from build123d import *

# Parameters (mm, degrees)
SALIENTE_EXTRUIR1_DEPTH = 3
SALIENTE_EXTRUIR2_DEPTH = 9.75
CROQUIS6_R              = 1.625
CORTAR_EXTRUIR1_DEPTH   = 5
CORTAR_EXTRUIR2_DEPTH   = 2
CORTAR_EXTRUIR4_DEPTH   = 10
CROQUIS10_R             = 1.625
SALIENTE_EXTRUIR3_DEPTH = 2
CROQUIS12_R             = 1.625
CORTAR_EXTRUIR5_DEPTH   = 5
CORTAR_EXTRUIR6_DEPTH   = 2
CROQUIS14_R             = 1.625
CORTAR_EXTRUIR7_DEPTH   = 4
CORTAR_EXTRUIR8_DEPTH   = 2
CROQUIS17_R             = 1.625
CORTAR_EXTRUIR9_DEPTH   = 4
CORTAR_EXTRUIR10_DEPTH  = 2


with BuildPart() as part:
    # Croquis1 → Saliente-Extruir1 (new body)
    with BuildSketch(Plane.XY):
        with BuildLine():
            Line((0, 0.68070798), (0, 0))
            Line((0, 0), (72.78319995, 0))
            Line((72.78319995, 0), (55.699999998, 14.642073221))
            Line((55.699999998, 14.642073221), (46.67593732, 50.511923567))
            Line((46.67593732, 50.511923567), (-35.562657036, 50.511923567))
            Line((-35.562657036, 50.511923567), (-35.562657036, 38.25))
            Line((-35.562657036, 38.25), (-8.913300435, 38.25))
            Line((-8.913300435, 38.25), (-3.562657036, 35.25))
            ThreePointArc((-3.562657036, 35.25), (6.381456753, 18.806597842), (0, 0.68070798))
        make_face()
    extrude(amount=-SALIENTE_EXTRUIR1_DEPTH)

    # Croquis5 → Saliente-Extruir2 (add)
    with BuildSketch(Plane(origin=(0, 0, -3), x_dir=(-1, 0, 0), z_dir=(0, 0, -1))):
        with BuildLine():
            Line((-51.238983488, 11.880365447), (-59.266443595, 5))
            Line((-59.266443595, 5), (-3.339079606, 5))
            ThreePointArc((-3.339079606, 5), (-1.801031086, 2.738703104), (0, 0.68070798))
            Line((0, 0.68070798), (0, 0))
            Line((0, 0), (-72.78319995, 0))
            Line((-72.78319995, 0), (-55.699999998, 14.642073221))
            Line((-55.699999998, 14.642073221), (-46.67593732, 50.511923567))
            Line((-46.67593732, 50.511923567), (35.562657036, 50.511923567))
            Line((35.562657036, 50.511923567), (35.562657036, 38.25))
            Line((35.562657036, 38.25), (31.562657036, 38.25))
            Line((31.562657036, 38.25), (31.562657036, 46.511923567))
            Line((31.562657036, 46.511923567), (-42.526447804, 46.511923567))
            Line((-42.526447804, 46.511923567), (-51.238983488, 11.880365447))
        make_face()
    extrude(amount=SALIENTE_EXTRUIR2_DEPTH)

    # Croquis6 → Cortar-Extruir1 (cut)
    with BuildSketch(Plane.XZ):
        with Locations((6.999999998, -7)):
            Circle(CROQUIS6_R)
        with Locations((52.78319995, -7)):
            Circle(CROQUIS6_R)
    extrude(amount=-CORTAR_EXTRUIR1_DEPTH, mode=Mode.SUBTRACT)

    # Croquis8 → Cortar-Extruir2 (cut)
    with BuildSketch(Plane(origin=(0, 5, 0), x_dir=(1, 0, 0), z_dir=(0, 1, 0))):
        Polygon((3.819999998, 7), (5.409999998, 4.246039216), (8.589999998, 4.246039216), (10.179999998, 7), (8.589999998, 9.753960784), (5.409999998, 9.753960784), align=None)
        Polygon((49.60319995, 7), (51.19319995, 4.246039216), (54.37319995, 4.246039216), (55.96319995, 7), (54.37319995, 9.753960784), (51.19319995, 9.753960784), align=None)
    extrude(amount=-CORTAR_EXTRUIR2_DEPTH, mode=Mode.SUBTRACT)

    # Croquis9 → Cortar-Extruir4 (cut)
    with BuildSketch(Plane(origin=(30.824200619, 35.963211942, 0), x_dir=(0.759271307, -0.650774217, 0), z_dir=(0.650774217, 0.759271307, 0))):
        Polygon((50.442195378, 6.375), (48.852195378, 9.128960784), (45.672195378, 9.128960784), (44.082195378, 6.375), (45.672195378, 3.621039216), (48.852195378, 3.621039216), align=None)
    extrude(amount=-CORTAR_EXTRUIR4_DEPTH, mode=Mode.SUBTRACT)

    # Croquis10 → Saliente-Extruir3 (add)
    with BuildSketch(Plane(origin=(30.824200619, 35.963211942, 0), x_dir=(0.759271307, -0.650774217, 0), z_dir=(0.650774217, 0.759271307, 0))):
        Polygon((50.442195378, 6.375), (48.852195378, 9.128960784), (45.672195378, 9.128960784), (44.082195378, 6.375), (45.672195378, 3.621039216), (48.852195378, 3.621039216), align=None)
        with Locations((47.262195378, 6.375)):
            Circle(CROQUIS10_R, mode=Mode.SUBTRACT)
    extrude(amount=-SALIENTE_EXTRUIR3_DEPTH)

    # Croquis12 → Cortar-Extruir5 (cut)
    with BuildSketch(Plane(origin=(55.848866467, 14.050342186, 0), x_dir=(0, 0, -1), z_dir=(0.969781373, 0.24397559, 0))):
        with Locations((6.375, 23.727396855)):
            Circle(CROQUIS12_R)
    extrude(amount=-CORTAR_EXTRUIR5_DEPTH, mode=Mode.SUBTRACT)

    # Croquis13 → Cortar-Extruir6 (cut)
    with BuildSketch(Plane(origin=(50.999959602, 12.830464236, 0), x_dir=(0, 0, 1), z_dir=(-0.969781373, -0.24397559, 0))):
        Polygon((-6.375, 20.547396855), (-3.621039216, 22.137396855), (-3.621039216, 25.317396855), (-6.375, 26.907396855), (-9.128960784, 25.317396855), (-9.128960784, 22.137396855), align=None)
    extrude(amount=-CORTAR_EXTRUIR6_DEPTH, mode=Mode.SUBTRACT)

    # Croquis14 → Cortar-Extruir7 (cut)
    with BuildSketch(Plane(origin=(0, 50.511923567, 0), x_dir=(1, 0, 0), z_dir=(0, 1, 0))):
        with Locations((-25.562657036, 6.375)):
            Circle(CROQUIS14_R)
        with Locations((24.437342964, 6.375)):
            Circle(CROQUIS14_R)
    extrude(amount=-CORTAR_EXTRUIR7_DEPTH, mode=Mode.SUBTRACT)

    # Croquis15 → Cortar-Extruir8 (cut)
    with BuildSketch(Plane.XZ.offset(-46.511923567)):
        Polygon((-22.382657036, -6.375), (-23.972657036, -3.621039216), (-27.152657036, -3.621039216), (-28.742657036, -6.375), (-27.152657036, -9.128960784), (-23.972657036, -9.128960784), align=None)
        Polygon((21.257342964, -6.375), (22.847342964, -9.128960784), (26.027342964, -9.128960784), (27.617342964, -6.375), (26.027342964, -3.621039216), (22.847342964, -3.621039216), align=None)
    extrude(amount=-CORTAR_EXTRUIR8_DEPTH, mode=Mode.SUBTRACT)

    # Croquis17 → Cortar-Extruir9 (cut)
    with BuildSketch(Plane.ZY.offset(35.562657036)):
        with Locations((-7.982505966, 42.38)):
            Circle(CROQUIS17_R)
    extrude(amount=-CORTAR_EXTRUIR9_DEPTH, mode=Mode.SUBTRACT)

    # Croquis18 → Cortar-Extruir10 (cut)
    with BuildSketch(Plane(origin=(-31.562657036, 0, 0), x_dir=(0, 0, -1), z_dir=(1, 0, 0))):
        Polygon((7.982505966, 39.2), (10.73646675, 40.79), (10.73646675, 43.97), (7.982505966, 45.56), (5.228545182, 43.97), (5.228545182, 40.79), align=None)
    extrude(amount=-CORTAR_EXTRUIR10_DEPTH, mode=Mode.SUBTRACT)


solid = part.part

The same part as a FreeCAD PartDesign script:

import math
import FreeCAD as App
import Part
import Sketcher
Q = App.Units.Quantity


def add_polygon(sketch, points):
    """Adds a closed chain of lines whose ends are joined by coincident constraints."""
    first, n = sketch.GeometryCount, len(points)
    for a, b in zip(points, points[1:] + points[:1]):
        sketch.addGeometry(Part.LineSegment(App.Vector(*a, 0), App.Vector(*b, 0)), False)
    for i in range(n):
        sketch.addConstraint(Sketcher.Constraint("Coincident", first + i, 2, first + (i + 1) % n, 1))

doc = App.newDocument("Part")
body = doc.addObject("PartDesign::Body", "Body")

sketch1 = doc.addObject("Sketcher::SketchObject", "Sketch")
body.addObject(sketch1)
sketch1.AttachmentSupport = (doc.XY_Plane, [""])
sketch1.MapMode = "FlatFace"
sketch1.addGeometry([
    Part.LineSegment(App.Vector(0, 0.7, 0), App.Vector(0, 0, 0)),
    Part.LineSegment(App.Vector(0, 0, 0), App.Vector(72.8, 0, 0)),
    Part.LineSegment(App.Vector(72.8, 0, 0), App.Vector(55.7, 14.6, 0)),
    Part.LineSegment(App.Vector(55.7, 14.6, 0), App.Vector(46.7, 50.5, 0)),
    Part.LineSegment(App.Vector(46.7, 50.5, 0), App.Vector(-35.6, 50.5, 0)),
    Part.LineSegment(App.Vector(-35.6, 50.5, 0), App.Vector(-35.6, 38.2, 0)),
    Part.LineSegment(App.Vector(-35.6, 38.2, 0), App.Vector(-8.9, 38.2, 0)),
    Part.LineSegment(App.Vector(-8.9, 38.2, 0), App.Vector(-3.6, 35.2, 0)),
    Part.ArcOfCircle(Part.Circle(App.Vector(-16, 16.5, 0), App.Vector(0, 0, 1), 22.5), math.radians(-45), math.radians(56)),
], False)
sketch1.addConstraint([
    Sketcher.Constraint("Coincident", 0, 2, 1, 1),
    Sketcher.Constraint("Coincident", 1, 2, 2, 1),
    Sketcher.Constraint("Coincident", 2, 2, 3, 1),
    Sketcher.Constraint("Coincident", 3, 2, 4, 1),
    Sketcher.Constraint("Coincident", 4, 2, 5, 1),
    Sketcher.Constraint("Coincident", 5, 2, 6, 1),
    Sketcher.Constraint("Coincident", 6, 2, 7, 1),
    Sketcher.Constraint("Coincident", 7, 2, 8, 2),
    Sketcher.Constraint("Coincident", 8, 1, 0, 1),
    Sketcher.Constraint("Vertical", 0),
    Sketcher.Constraint("Horizontal", 1),
    Sketcher.Constraint("Horizontal", 4),
    Sketcher.Constraint("Vertical", 5),
    Sketcher.Constraint("Horizontal", 6),
    Sketcher.Constraint("Coincident", 0, 2, -1, 1),
    Sketcher.Constraint("Radius", 8, 22.5),
    Sketcher.Constraint("DistanceX", 8, 3, -1, 1, 16.0),
    Sketcher.Constraint("Angle", 2, Q("139.4 deg")),
    Sketcher.Constraint("DistanceY", 7, 2, 6, 2, 3.0),
    Sketcher.Constraint("DistanceX", 5, 2, 7, 2, 32.0),
    Sketcher.Constraint("DistanceY", -1, 1, 8, 3, 16.5),
    Sketcher.Constraint("DistanceX", -1, 1, 2, 2, 55.7),
    Sketcher.Constraint("DistanceY", -1, 1, 5, 2, 38.25),
    Sketcher.Constraint("DistanceX", 1, 1, 1, 2, 72.7832),
    Sketcher.Constraint("DistanceX", 6, 2, -1, 1, 8.9133),
    Sketcher.Constraint("DistanceX", 4, 2, 4, 1, 82.238594),
    Sketcher.Constraint("DistanceY", 5, 2, 5, 1, 12.261924),
])
pad1 = doc.addObject("PartDesign::Pad", "Pad")
body.addObject(pad1)
pad1.Profile = sketch1
pad1.Length = 3
pad1.Reversed = True

sketch2 = doc.addObject("Sketcher::SketchObject", "Sketch001")
body.addObject(sketch2)
sketch2.AttachmentSupport = (doc.XY_Plane, [""])
sketch2.MapMode = "FlatFace"
sketch2.AttachmentOffset = App.Placement(App.Vector(0, 0, -3), App.Rotation())
sketch2.addGeometry([
    Part.LineSegment(App.Vector(59.266444, 5, 0), App.Vector(51.238983, 11.880365, 0)),
    Part.LineSegment(App.Vector(51.238983, 11.880365, 0), App.Vector(42.526448, 46.511924, 0)),
    Part.LineSegment(App.Vector(42.526448, 46.511924, 0), App.Vector(-31.562657, 46.511924, 0)),
    Part.LineSegment(App.Vector(-31.562657, 46.511924, 0), App.Vector(-31.562657, 38.25, 0)),
    Part.LineSegment(App.Vector(-31.562657, 38.25, 0), App.Vector(-35.562657, 38.25, 0)),
    Part.LineSegment(App.Vector(-35.562657, 38.25, 0), App.Vector(-35.562657, 50.511924, 0)),
    Part.LineSegment(App.Vector(-35.562657, 50.511924, 0), App.Vector(46.675937, 50.511924, 0)),
    Part.LineSegment(App.Vector(46.675937, 50.511924, 0), App.Vector(55.7, 14.642073, 0)),
    Part.LineSegment(App.Vector(55.7, 14.642073, 0), App.Vector(72.7832, 0, 0)),
    Part.LineSegment(App.Vector(72.7832, 0, 0), App.Vector(0, 0, 0)),
    Part.LineSegment(App.Vector(0, 0, 0), App.Vector(0, 0.680708, 0)),
    Part.ArcOfCircle(Part.Circle(App.Vector(-16, 16.5, 0), App.Vector(0, 0, 1), 22.5), math.radians(-44.67461), math.radians(-30.737869)),
    Part.LineSegment(App.Vector(3.33908, 5, 0), App.Vector(59.266444, 5, 0)),
], False)
sketch2.addConstraint([
    Sketcher.Constraint("Coincident", 0, 2, 1, 1),
    Sketcher.Constraint("Coincident", 1, 2, 2, 1),
    Sketcher.Constraint("Coincident", 2, 2, 3, 1),
    Sketcher.Constraint("Coincident", 3, 2, 4, 1),
    Sketcher.Constraint("Coincident", 4, 2, 5, 1),
    Sketcher.Constraint("Coincident", 5, 2, 6, 1),
    Sketcher.Constraint("Coincident", 6, 2, 7, 1),
    Sketcher.Constraint("Coincident", 7, 2, 8, 1),
    Sketcher.Constraint("Coincident", 8, 2, 9, 1),
    Sketcher.Constraint("Coincident", 9, 2, 10, 1),
    Sketcher.Constraint("Coincident", 10, 2, 11, 1),
    Sketcher.Constraint("Coincident", 11, 2, 12, 1),
    Sketcher.Constraint("Coincident", 12, 2, 0, 1),
    Sketcher.Constraint("Horizontal", 2),
    Sketcher.Constraint("Vertical", 3),
    Sketcher.Constraint("Horizontal", 4),
    Sketcher.Constraint("Vertical", 5),
    Sketcher.Constraint("Horizontal", 6),
    Sketcher.Constraint("Horizontal", 9),
    Sketcher.Constraint("Vertical", 10),
    Sketcher.Constraint("Horizontal", 12),
    Sketcher.Constraint("Coincident", 9, 2, -1, 1),
    Sketcher.Constraint("Parallel", 1, 7),
    Sketcher.Constraint("Parallel", 0, 8),
    Sketcher.Constraint("Radius", 11, 22.5),
    Sketcher.Constraint("DistanceX", 4, 2, 4, 1, 4.0),
    Sketcher.Constraint("DistanceX", 11, 3, -1, 1, 16.0),
    Sketcher.Constraint("DistanceY", -1, 1, 11, 2, 5.0),
    Sketcher.Constraint("Angle", 0, Q("139.4 deg")),
    Sketcher.Constraint("DistanceY", 2, 2, 5, 2, 4.0),
    Sketcher.Constraint("DistanceY", -1, 1, 11, 3, 16.5),
    Sketcher.Constraint("DistanceX", -1, 1, 7, 2, 55.7),
    Sketcher.Constraint("DistanceY", -1, 1, 3, 2, 38.25),
    Sketcher.Constraint("DistanceX", 9, 2, 9, 1, 72.7832),
    Sketcher.Constraint("DistanceX", 2, 2, 2, 1, 74.089105),
    Sketcher.Constraint("DistanceX", 6, 1, 6, 2, 82.238594),
    Sketcher.Constraint("DistanceX", 12, 1, 12, 2, 55.927364),
    Sketcher.Constraint("DistanceY", 3, 2, 3, 1, 8.261924),
    Sketcher.Constraint("DistanceY", 0, 2, 1, 2, 34.631558),
])
pad2 = doc.addObject("PartDesign::Pad", "Pad001")
body.addObject(pad2)
pad2.Profile = sketch2
pad2.Length = 9.75
pad2.Reversed = True

sketch3 = doc.addObject("Sketcher::SketchObject", "Sketch002")
body.addObject(sketch3)
sketch3.AttachmentSupport = (doc.XZ_Plane, [""])
sketch3.MapMode = "FlatFace"
sketch3.addGeometry([
    Part.Circle(App.Vector(7, -7, 0), App.Vector(0, 0, 1), 1.6),
    Part.Circle(App.Vector(52.8, -7, 0), App.Vector(0, 0, 1), 1.6),
], False)
sketch3.addConstraint([
    Sketcher.Constraint("Equal", 0, 1),
    Sketcher.Constraint("Horizontal", 0, 3, 1, 3),
    Sketcher.Constraint("Diameter", 0, 3.25),
    Sketcher.Constraint("DistanceX", -1, 1, 0, 3, 7.0),
    Sketcher.Constraint("DistanceY", 0, 3, -1, 1, 7.0),
    Sketcher.Constraint("DistanceX", -1, 1, 1, 3, 52.7832),
])
pocket1 = doc.addObject("PartDesign::Pocket", "Pocket")
body.addObject(pocket1)
pocket1.Profile = sketch3
pocket1.Length = 5

sketch4 = doc.addObject("Sketcher::SketchObject", "Sketch003")
body.addObject(sketch4)
sketch4.AttachmentSupport = (doc.XZ_Plane, [""])
sketch4.MapMode = "FlatFace"
sketch4.AttachmentOffset = App.Placement(App.Vector(0, 0, -5), App.Rotation())
add_polygon(sketch4, [(3.8, -7), (5.4, -4.2), (8.6, -4.2), (10.2, -7), (8.6, -9.8), (5.4, -9.8)])
add_polygon(sketch4, [(49.6, -7), (51.2, -4.2), (54.4, -4.2), (56, -7), (54.4, -9.8), (51.2, -9.8)])
sketch4.addConstraint([
    Sketcher.Constraint("Horizontal", 1),
    Sketcher.Constraint("Horizontal", 4),
    Sketcher.Constraint("Horizontal", 7),
    Sketcher.Constraint("Horizontal", 10),
    Sketcher.Constraint("Parallel", 0, 3),
    Sketcher.Constraint("Parallel", 2, 5),
    Sketcher.Constraint("Parallel", 3, 6),
    Sketcher.Constraint("Parallel", 5, 8),
    Sketcher.Constraint("Parallel", 6, 9),
    Sketcher.Constraint("Parallel", 8, 11),
    Sketcher.Constraint("Horizontal", 2, 2, 5, 2),
    Sketcher.Constraint("Horizontal", 1, 2, 6, 2),
    Sketcher.Constraint("Horizontal", 5, 2, 8, 2),
    Sketcher.Constraint("Horizontal", 4, 2, 9, 2),
    Sketcher.Constraint("Horizontal", 8, 2, 11, 2),
    Sketcher.Constraint("Vertical", 1, 2, 3, 2),
    Sketcher.Constraint("Vertical", 0, 2, 4, 2),
    Sketcher.Constraint("Equal", 4, 7),
    Sketcher.Constraint("Angle", 0, Q("60 deg")),
    Sketcher.Constraint("DistanceY", 2, 2, -1, 1, 7.0),
    Sketcher.Constraint("DistanceX", 1, 1, 1, 2, 3.18),
    Sketcher.Constraint("Distance", 0, 3.18),
    Sketcher.Constraint("DistanceX", -1, 1, 0, 2, 5.41),
    Sketcher.Constraint("DistanceX", -1, 1, 6, 2, 51.1932),
])
pocket2 = doc.addObject("PartDesign::Pocket", "Pocket001")
body.addObject(pocket2)
pocket2.Profile = sketch4
pocket2.Length = 2
pocket2.Reversed = True

sketch5 = doc.addObject("Sketcher::SketchObject", "Sketch004")
body.addObject(sketch5)
sketch5.Placement = App.Placement(App.Vector(30.824201, 35.963212, 0), App.Rotation(App.Vector(0.759271307, -0.650774217, 0), App.Vector(0, 0, -0.999999999), App.Vector(0.650774217, 0.759271307, 0), "ZXY"))
add_polygon(sketch5, [(50.4, 6.4), (48.9, 9.1), (45.7, 9.1), (44.1, 6.4), (45.7, 3.6), (48.9, 3.6)])
sketch5.addConstraint([
    Sketcher.Constraint("Horizontal", 1),
    Sketcher.Constraint("Horizontal", 4),
    Sketcher.Constraint("Parallel", 0, 3),
    Sketcher.Constraint("Parallel", 2, 5),
    Sketcher.Constraint("Horizontal", 2, 2, 5, 2),
    Sketcher.Constraint("Vertical", 1, 2, 3, 2),
    Sketcher.Constraint("Vertical", 0, 2, 4, 2),
    Sketcher.Constraint("Angle", 0, Q("120 deg")),
    Sketcher.Constraint("DistanceX", 1, 2, 1, 1, 3.18),
    Sketcher.Constraint("Distance", 0, 3.18),
    Sketcher.Constraint("DistanceY", -1, 1, 2, 2, 6.375),
    Sketcher.Constraint("DistanceX", -1, 1, 0, 2, 48.852195),
])
pocket3 = doc.addObject("PartDesign::Pocket", "Pocket002")
body.addObject(pocket3)
pocket3.Profile = sketch5
pocket3.Length = 10

sketch6 = doc.addObject("Sketcher::SketchObject", "Sketch005")
body.addObject(sketch6)
sketch6.Placement = App.Placement(App.Vector(30.824201, 35.963212, 0), App.Rotation(App.Vector(0.759271307, -0.650774217, 0), App.Vector(0, 0, -0.999999999), App.Vector(0.650774217, 0.759271307, 0), "ZXY"))
add_polygon(sketch6, [(50.4, 6.4), (48.9, 9.1), (45.7, 9.1), (44.1, 6.4), (45.7, 3.6), (48.9, 3.6)])
sketch6.addGeometry(Part.Circle(App.Vector(47.3, 6.4, 0), App.Vector(0, 0, 1), 1.6), False)
sketch6.addConstraint([
    Sketcher.Constraint("Horizontal", 1),
    Sketcher.Constraint("Horizontal", 4),
    Sketcher.Constraint("Parallel", 0, 3),
    Sketcher.Constraint("Parallel", 2, 5),
    Sketcher.Constraint("Horizontal", 6, 3, 2, 2),
    Sketcher.Constraint("Horizontal", 2, 2, 5, 2),
    Sketcher.Constraint("Vertical", 1, 2, 3, 2),
    Sketcher.Constraint("Vertical", 0, 2, 4, 2),
    Sketcher.Constraint("Diameter", 6, 3.25),
    Sketcher.Constraint("Angle", 0, Q("120 deg")),
    Sketcher.Constraint("DistanceX", 1, 2, 1, 1, 3.18),
    Sketcher.Constraint("Distance", 0, 3.18),
    Sketcher.Constraint("DistanceX", 6, 3, 0, 2, 1.59),
    Sketcher.Constraint("DistanceY", -1, 1, 6, 3, 6.375),
    Sketcher.Constraint("DistanceX", -1, 1, 6, 3, 47.262195),
])
pad3 = doc.addObject("PartDesign::Pad", "Pad002")
body.addObject(pad3)
pad3.Profile = sketch6
pad3.Length = 2
pad3.Reversed = True

sketch7 = doc.addObject("Sketcher::SketchObject", "Sketch006")
body.addObject(sketch7)
sketch7.Placement = App.Placement(App.Vector(55.848866, 14.050342, 0), App.Rotation(App.Vector(0, 0, -1), App.Vector(-0.24397559, 0.969781373, 0), App.Vector(0.969781373, 0.24397559, 0), "ZXY"))
sketch7.addGeometry(Part.Circle(App.Vector(6.4, 23.7, 0), App.Vector(0, 0, 1), 1.6), False)
sketch7.addConstraint([
    Sketcher.Constraint("Diameter", 0, 3.25),
    Sketcher.Constraint("DistanceX", -1, 1, 0, 3, 6.375),
    Sketcher.Constraint("DistanceY", -1, 1, 0, 3, 23.727397),
])
pocket4 = doc.addObject("PartDesign::Pocket", "Pocket003")
body.addObject(pocket4)
pocket4.Profile = sketch7
pocket4.Length = 5

sketch8 = doc.addObject("Sketcher::SketchObject", "Sketch007")
body.addObject(sketch8)
sketch8.Placement = App.Placement(App.Vector(50.99996, 12.830464, 0), App.Rotation(App.Vector(0, 0, 1), App.Vector(-0.24397559, 0.969781373, 0), App.Vector(-0.969781373, -0.24397559, 0), "ZXY"))
add_polygon(sketch8, [(-6.4, 20.5), (-3.6, 22.1), (-3.6, 25.3), (-6.4, 26.9), (-9.1, 25.3), (-9.1, 22.1)])
sketch8.addConstraint([
    Sketcher.Constraint("Vertical", 1),
    Sketcher.Constraint("Vertical", 4),
    Sketcher.Constraint("Parallel", 0, 3),
    Sketcher.Constraint("Parallel", 2, 5),
    Sketcher.Constraint("Horizontal", 1, 2, 3, 2),
    Sketcher.Constraint("Horizontal", 0, 2, 4, 2),
    Sketcher.Constraint("Vertical", 2, 2, 5, 2),
    Sketcher.Constraint("Angle", 0, Q("30 deg")),
    Sketcher.Constraint("DistanceY", 1, 1, 1, 2, 3.18),
    Sketcher.Constraint("Distance", 0, 3.18),
    Sketcher.Constraint("DistanceX", 2, 2, -1, 1, 6.375),
    Sketcher.Constraint("DistanceY", -1, 1, 0, 2, 22.137397),
])
pocket5 = doc.addObject("PartDesign::Pocket", "Pocket004")
body.addObject(pocket5)
pocket5.Profile = sketch8
pocket5.Length = 2

sketch9 = doc.addObject("Sketcher::SketchObject", "Sketch008")
body.addObject(sketch9)
sketch9.AttachmentSupport = (doc.XZ_Plane, [""])
sketch9.MapMode = "FlatFace"
sketch9.AttachmentOffset = App.Placement(App.Vector(0, 0, -50.511924), App.Rotation())
sketch9.addGeometry([
    Part.Circle(App.Vector(-25.6, -6.4, 0), App.Vector(0, 0, 1), 1.6),
    Part.Circle(App.Vector(24.4, -6.4, 0), App.Vector(0, 0, 1), 1.6),
], False)
sketch9.addConstraint([
    Sketcher.Constraint("Equal", 0, 1),
    Sketcher.Constraint("Horizontal", 0, 3, 1, 3),
    Sketcher.Constraint("Diameter", 0, 3.25),
    Sketcher.Constraint("DistanceX", 0, 3, 1, 3, 50.0),
    Sketcher.Constraint("DistanceY", 0, 3, -1, 1, 6.375),
    Sketcher.Constraint("DistanceX", 0, 3, -1, 1, 25.562657),
])
pocket6 = doc.addObject("PartDesign::Pocket", "Pocket005")
body.addObject(pocket6)
pocket6.Profile = sketch9
pocket6.Length = 4
pocket6.Reversed = True

sketch10 = doc.addObject("Sketcher::SketchObject", "Sketch009")
body.addObject(sketch10)
sketch10.AttachmentSupport = (doc.XZ_Plane, [""])
sketch10.MapMode = "FlatFace"
sketch10.AttachmentOffset = App.Placement(App.Vector(0, 0, -46.511924), App.Rotation())
add_polygon(sketch10, [(-22.4, -6.4), (-24, -3.6), (-27.2, -3.6), (-28.7, -6.4), (-27.2, -9.1), (-24, -9.1)])
add_polygon(sketch10, [(21.3, -6.4), (22.8, -9.1), (26, -9.1), (27.6, -6.4), (26, -3.6), (22.8, -3.6)])
sketch10.addConstraint([
    Sketcher.Constraint("Horizontal", 1),
    Sketcher.Constraint("Horizontal", 4),
    Sketcher.Constraint("Horizontal", 7),
    Sketcher.Constraint("Horizontal", 10),
    Sketcher.Constraint("Parallel", 0, 3),
    Sketcher.Constraint("Parallel", 2, 5),
    Sketcher.Constraint("Parallel", 3, 6),
    Sketcher.Constraint("Parallel", 5, 8),
    Sketcher.Constraint("Parallel", 6, 9),
    Sketcher.Constraint("Parallel", 8, 11),
    Sketcher.Constraint("Horizontal", 2, 2, 5, 2),
    Sketcher.Constraint("Horizontal", 4, 2, 6, 2),
    Sketcher.Constraint("Horizontal", 5, 2, 8, 2),
    Sketcher.Constraint("Horizontal", 1, 2, 9, 2),
    Sketcher.Constraint("Horizontal", 8, 2, 11, 2),
    Sketcher.Constraint("Vertical", 1, 2, 3, 2),
    Sketcher.Constraint("Vertical", 0, 2, 4, 2),
    Sketcher.Constraint("Equal", 4, 7),
    Sketcher.Constraint("Angle", 0, Q("120 deg")),
    Sketcher.Constraint("DistanceX", 3, 2, 6, 2, 50.0),
    Sketcher.Constraint("DistanceX", 1, 2, 1, 1, 3.18),
    Sketcher.Constraint("Distance", 0, 3.18),
    Sketcher.Constraint("DistanceY", 2, 2, -1, 1, 6.375),
    Sketcher.Constraint("DistanceX", 0, 2, -1, 1, 23.972657),
])
pocket7 = doc.addObject("PartDesign::Pocket", "Pocket006")
body.addObject(pocket7)
pocket7.Profile = sketch10
pocket7.Length = 2

sketch11 = doc.addObject("Sketcher::SketchObject", "Sketch010")
body.addObject(sketch11)
sketch11.AttachmentSupport = (doc.YZ_Plane, [""])
sketch11.MapMode = "FlatFace"
sketch11.AttachmentOffset = App.Placement(App.Vector(0, 0, -35.562657), App.Rotation())
sketch11.addGeometry(Part.Circle(App.Vector(42.4, -8, 0), App.Vector(0, 0, 1), 1.6), False)
sketch11.addConstraint([
    Sketcher.Constraint("Diameter", 0, 3.25),
    Sketcher.Constraint("DistanceX", -1, 1, 0, 3, 42.38),
    Sketcher.Constraint("DistanceY", 0, 3, -1, 1, 7.982506),
])
pocket8 = doc.addObject("PartDesign::Pocket", "Pocket007")
body.addObject(pocket8)
pocket8.Profile = sketch11
pocket8.Length = 4
pocket8.Reversed = True

sketch12 = doc.addObject("Sketcher::SketchObject", "Sketch011")
body.addObject(sketch12)
sketch12.AttachmentSupport = (doc.YZ_Plane, [""])
sketch12.MapMode = "FlatFace"
sketch12.AttachmentOffset = App.Placement(App.Vector(0, 0, -31.562657), App.Rotation())
add_polygon(sketch12, [(39.2, -8), (40.8, -10.7), (44, -10.7), (45.6, -8), (44, -5.2), (40.8, -5.2)])
sketch12.addConstraint([
    Sketcher.Constraint("Horizontal", 1),
    Sketcher.Constraint("Horizontal", 4),
    Sketcher.Constraint("Parallel", 0, 3),
    Sketcher.Constraint("Parallel", 2, 5),
    Sketcher.Constraint("Horizontal", 2, 2, 5, 2),
    Sketcher.Constraint("Vertical", 1, 2, 3, 2),
    Sketcher.Constraint("Vertical", 0, 2, 4, 2),
    Sketcher.Constraint("Angle", 0, Q("-60 deg")),
    Sketcher.Constraint("DistanceX", 1, 1, 1, 2, 3.18),
    Sketcher.Constraint("DistanceX", -1, 1, 5, 2, 39.2),
    Sketcher.Constraint("Distance", 0, 3.18),
    Sketcher.Constraint("DistanceY", 0, 2, -1, 1, 10.736467),
])
pocket9 = doc.addObject("PartDesign::Pocket", "Pocket008")
body.addObject(pocket9)
pocket9.Profile = sketch12
pocket9.Length = 2

doc.recompute()
